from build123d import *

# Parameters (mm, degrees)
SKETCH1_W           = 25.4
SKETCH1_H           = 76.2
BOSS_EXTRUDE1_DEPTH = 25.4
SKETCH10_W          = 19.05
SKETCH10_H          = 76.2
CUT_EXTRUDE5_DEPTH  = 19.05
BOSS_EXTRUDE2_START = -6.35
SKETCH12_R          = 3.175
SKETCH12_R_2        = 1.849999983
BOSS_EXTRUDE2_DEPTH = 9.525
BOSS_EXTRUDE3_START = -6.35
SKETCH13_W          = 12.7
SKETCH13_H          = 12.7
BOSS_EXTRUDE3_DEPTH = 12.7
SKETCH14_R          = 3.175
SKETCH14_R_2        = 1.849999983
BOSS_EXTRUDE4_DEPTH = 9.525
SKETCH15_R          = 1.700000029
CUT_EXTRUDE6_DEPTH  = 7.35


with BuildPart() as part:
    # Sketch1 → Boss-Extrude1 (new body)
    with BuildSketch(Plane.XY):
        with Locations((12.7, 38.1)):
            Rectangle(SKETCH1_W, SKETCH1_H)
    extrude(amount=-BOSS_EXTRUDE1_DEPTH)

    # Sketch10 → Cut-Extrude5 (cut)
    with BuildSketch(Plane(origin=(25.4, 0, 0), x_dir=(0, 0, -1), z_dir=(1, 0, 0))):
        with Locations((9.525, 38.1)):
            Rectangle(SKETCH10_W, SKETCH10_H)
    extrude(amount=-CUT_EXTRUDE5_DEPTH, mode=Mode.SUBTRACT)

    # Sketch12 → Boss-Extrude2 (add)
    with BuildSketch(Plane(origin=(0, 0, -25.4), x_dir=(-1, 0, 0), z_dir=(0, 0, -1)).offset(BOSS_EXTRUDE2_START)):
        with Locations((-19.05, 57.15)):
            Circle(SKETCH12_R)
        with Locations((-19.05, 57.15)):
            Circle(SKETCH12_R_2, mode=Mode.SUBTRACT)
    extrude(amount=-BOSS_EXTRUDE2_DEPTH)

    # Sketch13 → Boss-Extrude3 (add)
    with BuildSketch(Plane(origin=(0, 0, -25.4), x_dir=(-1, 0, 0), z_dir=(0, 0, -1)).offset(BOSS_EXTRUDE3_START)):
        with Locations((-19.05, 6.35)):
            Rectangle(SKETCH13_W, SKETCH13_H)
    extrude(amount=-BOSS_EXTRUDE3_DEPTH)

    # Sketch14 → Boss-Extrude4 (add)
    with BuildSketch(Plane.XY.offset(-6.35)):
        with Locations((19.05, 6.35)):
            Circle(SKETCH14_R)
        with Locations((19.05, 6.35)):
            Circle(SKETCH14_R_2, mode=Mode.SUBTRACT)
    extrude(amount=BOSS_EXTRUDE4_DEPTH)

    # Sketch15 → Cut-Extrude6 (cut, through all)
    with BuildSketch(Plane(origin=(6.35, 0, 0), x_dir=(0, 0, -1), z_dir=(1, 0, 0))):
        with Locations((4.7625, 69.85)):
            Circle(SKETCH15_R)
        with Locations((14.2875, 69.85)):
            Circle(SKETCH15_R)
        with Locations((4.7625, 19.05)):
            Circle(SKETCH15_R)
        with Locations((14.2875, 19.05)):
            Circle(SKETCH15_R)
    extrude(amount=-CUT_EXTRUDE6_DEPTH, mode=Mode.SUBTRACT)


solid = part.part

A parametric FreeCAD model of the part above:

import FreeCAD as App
import Part
import Sketcher
Q = App.Units.Quantity


def add_polygon(sketch, points):
    """Adds a closed chain of lines whose ends are joined by coincident constraints."""
    first, n = sketch.GeometryCount, len(points)
    for a, b in zip(points, points[1:] + points[:1]):
        sketch.addGeometry(Part.LineSegment(App.Vector(*a, 0), App.Vector(*b, 0)), False)
    for i in range(n):
        sketch.addConstraint(Sketcher.Constraint("Coincident", first + i, 2, first + (i + 1) % n, 1))

doc = App.newDocument("Part")
body = doc.addObject("PartDesign::Body", "Body")

sketch1 = body.newObject("Sketcher::SketchObject", "Sketch")
sketch1.AttachmentSupport = (doc.getObject("XY_Plane"), [""])
sketch1.MapMode = "FlatFace"
add_polygon(sketch1, [(0, 76), (0, 0), (25, 0), (25, 76)])
sketch1.addConstraint(Sketcher.Constraint("Vertical", 0))
sketch1.addConstraint(Sketcher.Constraint("Horizontal", 1))
sketch1.addConstraint(Sketcher.Constraint("Vertical", 2))
sketch1.addConstraint(Sketcher.Constraint("Horizontal", 3))
sketch1.addConstraint(Sketcher.Constraint("Coincident", 0, 2, -1, 1))
sketch1.addConstraint(Sketcher.Constraint("DistanceX", 1, 1, 1, 2, Q("1 in")))
sketch1.addConstraint(Sketcher.Constraint("DistanceY", 0, 2, 0, 1, Q("3 in")))
pad1 = body.newObject("PartDesign::Pad", "Pad")
pad1.Profile = sketch1
pad1.Length = Q("1 in")
pad1.Reversed = True

sketch2 = body.newObject("Sketcher::SketchObject", "Sketch001")
sketch2.AttachmentSupport = (doc.getObject("YZ_Plane"), [""])
sketch2.MapMode = "FlatFace"
sketch2.AttachmentOffset = App.Placement(App.Vector(0, 0, 1 * 25.4), App.Rotation())
add_polygon(sketch2, [(76, 0), (0, 0), (0, -19), (76, -19)])
sketch2.addConstraint(Sketcher.Constraint("Horizontal", 0))
sketch2.addConstraint(Sketcher.Constraint("Vertical", 1))
sketch2.addConstraint(Sketcher.Constraint("Horizontal", 2))
sketch2.addConstraint(Sketcher.Constraint("Vertical", 3))
sketch2.addConstraint(Sketcher.Constraint("Coincident", 0, 2, -1, 1))
sketch2.addConstraint(Sketcher.Constraint("DistanceX", 0, 2, 0, 1, Q("3 in")))
sketch2.addConstraint(Sketcher.Constraint("DistanceY", 1, 2, 1, 1, Q("0.75 in")))
pocket1 = body.newObject("PartDesign::Pocket", "Pocket")
pocket1.Profile = sketch2
pocket1.Length = Q("0.75 in")

sketch3 = body.newObject("Sketcher::SketchObject", "Sketch002")
sketch3.AttachmentSupport = (doc.getObject("XY_Plane"), [""])
sketch3.MapMode = "FlatFace"
sketch3.AttachmentOffset = App.Placement(App.Vector(0, 0, -0.75 * 25.4), App.Rotation())
sketch3.addGeometry(Part.Circle(App.Vector(19.1, 57.1, 0), App.Vector(0, 0, 1), 3.2), False)
sketch3.addGeometry(Part.Circle(App.Vector(19.1, 57.1, 0), App.Vector(0, 0, 1), 1.8), False)
sketch3.addConstraint(Sketcher.Constraint("Coincident", 1, 3, 0, 3))
sketch3.addConstraint(Sketcher.Constraint("Diameter", 0, Q("0.25 in")))
sketch3.addConstraint(Sketcher.Constraint("Diameter", 1, 3.7))
sketch3.addConstraint(Sketcher.Constraint("DistanceX", -1, 1, 0, 3, Q("0.75 in")))
sketch3.addConstraint(Sketcher.Constraint("DistanceY", -1, 1, 0, 3, Q("2.25 in")))
pad2 = body.newObject("PartDesign::Pad", "Pad001")
pad2.Profile = sketch3
pad2.Length = Q("0.375 in")

sketch4 = body.newObject("Sketcher::SketchObject", "Sketch003")
sketch4.AttachmentSupport = (doc.getObject("XY_Plane"), [""])
sketch4.MapMode = "FlatFace"
sketch4.AttachmentOffset = App.Placement(App.Vector(0, 0, -0.75 * 25.4), App.Rotation())
add_polygon(sketch4, [(25, 13), (25, 0), (13, 0), (13, 13)])
sketch4.addConstraint(Sketcher.Constraint("Vertical", 0))
sketch4.addConstraint(Sketcher.Constraint("Horizontal", 1))
sketch4.addConstraint(Sketcher.Constraint("Vertical", 2))
sketch4.addConstraint(Sketcher.Constraint("Horizontal", 3))
sketch4.addConstraint(Sketcher.Constraint("PointOnObject", 0, 2, -1))
sketch4.addConstraint(Sketcher.Constraint("Equal", 3, 0))
sketch4.addConstraint(Sketcher.Constraint("DistanceX", 1, 2, 1, 1, Q("0.5 in")))
sketch4.addConstraint(Sketcher.Constraint("DistanceX", -1, 1, 0, 2, Q("1 in")))
pad3 = body.newObject("PartDesign::Pad", "Pad002")
pad3.Profile = sketch4
pad3.Length = Q("0.5 in")

sketch5 = body.newObject("Sketcher::SketchObject", "Sketch004")
sketch5.AttachmentSupport = (doc.getObject("XY_Plane"), [""])
sketch5.MapMode = "FlatFace"
sketch5.AttachmentOffset = App.Placement(App.Vector(0, 0, -0.25 * 25.4), App.Rotation())
sketch5.addGeometry(Part.Circle(App.Vector(19.1, 6.3, 0), App.Vector(0, 0, 1), 3.2), False)
sketch5.addGeometry(Part.Circle(App.Vector(19.1, 6.3, 0), App.Vector(0, 0, 1), 1.8), False)
sketch5.addConstraint(Sketcher.Constraint("Coincident", 1, 3, 0, 3))
sketch5.addConstraint(Sketcher.Constraint("Diameter", 0, Q("0.25 in")))
sketch5.addConstraint(Sketcher.Constraint("Diameter", 1, 3.7))
sketch5.addConstraint(Sketcher.Constraint("DistanceX", -1, 1, 0, 3, Q("0.75 in")))
sketch5.addConstraint(Sketcher.Constraint("DistanceY", -1, 1, 0, 3, Q("0.25 in")))
pad4 = body.newObject("PartDesign::Pad", "Pad003")
pad4.Profile = sketch5
pad4.Length = Q("0.375 in")

sketch6 = body.newObject("Sketcher::SketchObject", "Sketch005")
sketch6.AttachmentSupport = (doc.getObject("YZ_Plane"), [""])
sketch6.MapMode = "FlatFace"
sketch6.AttachmentOffset = App.Placement(App.Vector(0, 0, 0.25 * 25.4), App.Rotation())
sketch6.addGeometry(Part.Circle(App.Vector(69.8, -4.8, 0), App.Vector(0, 0, 1), 1.7), False)
sketch6.addGeometry(Part.Circle(App.Vector(69.8, -14.3, 0), App.Vector(0, 0, 1), 1.7), False)
sketch6.addGeometry(Part.Circle(App.Vector(19.1, -4.8, 0), App.Vector(0, 0, 1), 1.7), False)
sketch6.addGeometry(Part.Circle(App.Vector(19.1, -14.3, 0), App.Vector(0, 0, 1), 1.7), False)
sketch6.addConstraint(Sketcher.Constraint("Equal", 0, 1))
sketch6.addConstraint(Sketcher.Constraint("Equal", 1, 2))
sketch6.addConstraint(Sketcher.Constraint("Equal", 2, 3))
sketch6.addConstraint(Sketcher.Constraint("Horizontal", 0, 3, 2, 3))
sketch6.addConstraint(Sketcher.Constraint("Horizontal", 1, 3, 3, 3))
sketch6.addConstraint(Sketcher.Constraint("Vertical", 0, 3, 1, 3))
sketch6.addConstraint(Sketcher.Constraint("Vertical", 2, 3, 3, 3))
sketch6.addConstraint(Sketcher.Constraint("DistanceX", 2, 3, 0, 3, Q("2 in")))
sketch6.addConstraint(Sketcher.Constraint("Diameter", 0, 3.4))
sketch6.addConstraint(Sketcher.Constraint("DistanceX", -1, 1, 0, 3, Q("2.75 in")))
sketch6.addConstraint(Sketcher.Constraint("DistanceY", 0, 3, -1, 1, Q("0.1875 in")))
sketch6.addConstraint(Sketcher.Constraint("DistanceY", 1, 3, -1, 1, Q("0.5625 in")))
pocket2 = body.newObject("PartDesign::Pocket", "Pocket001")
pocket2.Profile = sketch6
pocket2.Type = "ThroughAll"

doc.recompute()
